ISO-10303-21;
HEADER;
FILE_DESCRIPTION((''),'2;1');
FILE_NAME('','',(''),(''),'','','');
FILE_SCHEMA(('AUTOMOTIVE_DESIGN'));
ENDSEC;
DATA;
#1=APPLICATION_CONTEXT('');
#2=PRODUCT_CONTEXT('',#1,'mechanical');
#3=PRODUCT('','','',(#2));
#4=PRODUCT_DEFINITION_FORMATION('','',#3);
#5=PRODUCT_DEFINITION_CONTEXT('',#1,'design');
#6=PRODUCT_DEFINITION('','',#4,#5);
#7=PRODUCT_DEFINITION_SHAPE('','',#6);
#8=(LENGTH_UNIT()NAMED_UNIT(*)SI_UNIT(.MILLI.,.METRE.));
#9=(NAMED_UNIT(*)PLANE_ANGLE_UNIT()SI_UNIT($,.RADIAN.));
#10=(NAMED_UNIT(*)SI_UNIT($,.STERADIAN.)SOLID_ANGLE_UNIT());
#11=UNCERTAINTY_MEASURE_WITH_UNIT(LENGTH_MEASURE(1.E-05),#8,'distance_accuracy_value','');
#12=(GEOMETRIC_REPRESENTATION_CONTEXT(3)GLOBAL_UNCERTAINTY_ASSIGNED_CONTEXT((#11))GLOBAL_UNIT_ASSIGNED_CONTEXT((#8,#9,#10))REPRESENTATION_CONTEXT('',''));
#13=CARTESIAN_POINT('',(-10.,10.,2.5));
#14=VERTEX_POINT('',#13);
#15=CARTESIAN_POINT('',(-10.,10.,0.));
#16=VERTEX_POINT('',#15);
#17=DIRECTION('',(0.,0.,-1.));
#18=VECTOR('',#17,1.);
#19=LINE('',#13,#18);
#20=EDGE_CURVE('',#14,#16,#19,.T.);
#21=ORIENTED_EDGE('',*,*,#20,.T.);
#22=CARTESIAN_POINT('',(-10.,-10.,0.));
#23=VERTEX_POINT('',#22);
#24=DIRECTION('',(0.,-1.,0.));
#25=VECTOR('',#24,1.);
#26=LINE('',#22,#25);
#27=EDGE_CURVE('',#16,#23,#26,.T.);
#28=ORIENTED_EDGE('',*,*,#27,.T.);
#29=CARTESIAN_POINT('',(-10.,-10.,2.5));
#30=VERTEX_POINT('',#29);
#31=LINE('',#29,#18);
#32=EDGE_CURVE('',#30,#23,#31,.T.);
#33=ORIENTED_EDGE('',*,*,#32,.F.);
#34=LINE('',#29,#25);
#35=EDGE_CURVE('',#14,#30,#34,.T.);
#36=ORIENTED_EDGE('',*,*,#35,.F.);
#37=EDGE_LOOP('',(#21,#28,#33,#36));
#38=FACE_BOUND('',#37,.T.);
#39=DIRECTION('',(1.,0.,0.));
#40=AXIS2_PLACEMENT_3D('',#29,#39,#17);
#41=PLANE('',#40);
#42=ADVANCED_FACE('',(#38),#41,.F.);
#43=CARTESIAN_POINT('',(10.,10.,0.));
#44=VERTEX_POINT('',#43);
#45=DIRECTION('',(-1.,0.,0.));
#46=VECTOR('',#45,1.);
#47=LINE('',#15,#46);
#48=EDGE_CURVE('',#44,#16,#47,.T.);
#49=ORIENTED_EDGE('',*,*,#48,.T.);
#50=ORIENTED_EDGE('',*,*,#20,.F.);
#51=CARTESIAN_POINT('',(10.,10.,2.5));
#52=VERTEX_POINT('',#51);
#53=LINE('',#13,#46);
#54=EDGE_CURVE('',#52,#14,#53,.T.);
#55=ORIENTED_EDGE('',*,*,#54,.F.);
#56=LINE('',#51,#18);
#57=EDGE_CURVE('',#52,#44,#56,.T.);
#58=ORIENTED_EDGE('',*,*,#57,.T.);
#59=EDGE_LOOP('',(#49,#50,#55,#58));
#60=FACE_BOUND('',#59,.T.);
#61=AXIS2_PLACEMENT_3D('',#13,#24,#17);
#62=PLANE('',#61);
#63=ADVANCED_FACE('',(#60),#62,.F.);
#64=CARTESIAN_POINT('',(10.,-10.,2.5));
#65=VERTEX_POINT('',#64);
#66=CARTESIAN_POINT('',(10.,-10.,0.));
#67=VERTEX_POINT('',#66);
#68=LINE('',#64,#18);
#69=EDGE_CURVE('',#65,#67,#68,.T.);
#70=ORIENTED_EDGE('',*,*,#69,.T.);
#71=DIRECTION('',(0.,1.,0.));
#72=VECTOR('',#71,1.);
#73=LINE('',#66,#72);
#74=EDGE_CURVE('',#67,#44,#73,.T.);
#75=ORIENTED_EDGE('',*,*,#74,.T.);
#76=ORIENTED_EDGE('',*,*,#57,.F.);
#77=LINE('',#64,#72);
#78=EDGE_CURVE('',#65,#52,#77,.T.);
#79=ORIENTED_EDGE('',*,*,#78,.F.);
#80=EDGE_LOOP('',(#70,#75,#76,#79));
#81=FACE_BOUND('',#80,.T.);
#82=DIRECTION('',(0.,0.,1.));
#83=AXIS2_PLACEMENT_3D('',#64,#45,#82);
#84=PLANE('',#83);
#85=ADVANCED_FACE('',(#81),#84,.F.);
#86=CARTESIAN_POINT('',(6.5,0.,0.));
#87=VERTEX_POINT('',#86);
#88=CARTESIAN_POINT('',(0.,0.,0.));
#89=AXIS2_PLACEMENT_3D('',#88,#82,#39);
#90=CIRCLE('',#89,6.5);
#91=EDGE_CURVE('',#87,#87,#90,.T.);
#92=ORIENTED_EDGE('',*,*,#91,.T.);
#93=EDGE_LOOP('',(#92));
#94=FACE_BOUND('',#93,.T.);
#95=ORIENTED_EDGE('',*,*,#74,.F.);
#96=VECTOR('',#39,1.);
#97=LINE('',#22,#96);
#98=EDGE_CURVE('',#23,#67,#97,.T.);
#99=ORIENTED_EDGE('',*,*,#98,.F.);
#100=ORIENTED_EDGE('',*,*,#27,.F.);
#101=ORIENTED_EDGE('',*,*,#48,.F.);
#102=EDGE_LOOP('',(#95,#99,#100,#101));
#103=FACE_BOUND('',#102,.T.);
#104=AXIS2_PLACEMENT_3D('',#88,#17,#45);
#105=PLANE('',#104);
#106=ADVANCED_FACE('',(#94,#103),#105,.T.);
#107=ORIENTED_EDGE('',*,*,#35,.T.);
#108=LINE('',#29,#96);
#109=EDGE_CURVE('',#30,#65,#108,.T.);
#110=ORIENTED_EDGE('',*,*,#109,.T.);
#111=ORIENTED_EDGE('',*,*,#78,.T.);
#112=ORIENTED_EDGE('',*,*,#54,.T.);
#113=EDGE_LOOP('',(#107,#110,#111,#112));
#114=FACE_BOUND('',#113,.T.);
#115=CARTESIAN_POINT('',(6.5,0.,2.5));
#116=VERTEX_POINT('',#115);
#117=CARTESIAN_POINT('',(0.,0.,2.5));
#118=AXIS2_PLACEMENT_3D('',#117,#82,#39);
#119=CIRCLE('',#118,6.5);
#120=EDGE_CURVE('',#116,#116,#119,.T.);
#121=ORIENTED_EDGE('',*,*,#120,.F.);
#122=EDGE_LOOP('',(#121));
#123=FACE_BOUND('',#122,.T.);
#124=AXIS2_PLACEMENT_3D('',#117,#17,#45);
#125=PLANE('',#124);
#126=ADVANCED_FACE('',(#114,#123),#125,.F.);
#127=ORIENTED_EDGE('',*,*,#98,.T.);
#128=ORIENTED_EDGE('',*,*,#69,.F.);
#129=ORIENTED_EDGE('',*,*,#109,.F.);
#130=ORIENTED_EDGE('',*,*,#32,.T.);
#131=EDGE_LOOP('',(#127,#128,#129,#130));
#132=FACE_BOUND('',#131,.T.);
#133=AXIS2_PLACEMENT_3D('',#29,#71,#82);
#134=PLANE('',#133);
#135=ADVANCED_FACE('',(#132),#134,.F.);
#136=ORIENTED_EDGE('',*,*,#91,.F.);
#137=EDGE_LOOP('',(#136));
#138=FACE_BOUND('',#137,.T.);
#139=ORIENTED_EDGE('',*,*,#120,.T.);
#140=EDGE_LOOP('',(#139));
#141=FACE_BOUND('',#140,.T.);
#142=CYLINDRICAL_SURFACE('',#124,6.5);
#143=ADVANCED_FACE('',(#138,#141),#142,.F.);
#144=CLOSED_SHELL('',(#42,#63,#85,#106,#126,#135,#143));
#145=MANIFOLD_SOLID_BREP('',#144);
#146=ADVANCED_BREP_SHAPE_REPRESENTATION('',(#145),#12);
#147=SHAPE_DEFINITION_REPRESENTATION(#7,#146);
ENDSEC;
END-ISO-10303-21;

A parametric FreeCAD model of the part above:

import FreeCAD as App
import Part
import Sketcher

doc = App.newDocument("Part")
body = doc.addObject("PartDesign::Body", "Body")

# Sketch on XY plane
sketch1 = body.newObject("Sketcher::SketchObject", "Sketch")
sketch1.AttachmentSupport = (doc.getObject("XY_Plane"), [""])
sketch1.MapMode = "FlatFace"
sketch1.addGeometry(Part.LineSegment(App.Vector(-10, 10, 0), App.Vector(-10, -10, 0)), False)
sketch1.addGeometry(Part.LineSegment(App.Vector(-10, -10, 0), App.Vector(10, -10, 0)), False)
sketch1.addGeometry(Part.LineSegment(App.Vector(10, -10, 0), App.Vector(10, 10, 0)), False)
sketch1.addGeometry(Part.LineSegment(App.Vector(10, 10, 0), App.Vector(-10, 10, 0)), False)
sketch1.addGeometry(Part.Circle(App.Vector(0, 0, 0), App.Vector(0, 0, 1), 6), False)
sketch1.addConstraint(Sketcher.Constraint("Coincident", 0, 2, 1, 1))
sketch1.addConstraint(Sketcher.Constraint("Coincident", 1, 2, 2, 1))
sketch1.addConstraint(Sketcher.Constraint("Coincident", 2, 2, 3, 1))
sketch1.addConstraint(Sketcher.Constraint("Coincident", 3, 2, 0, 1))
sketch1.addConstraint(Sketcher.Constraint("Vertical", 0))
sketch1.addConstraint(Sketcher.Constraint("Horizontal", 1))
sketch1.addConstraint(Sketcher.Constraint("Vertical", 2))
sketch1.addConstraint(Sketcher.Constraint("Horizontal", 3))
sketch1.addConstraint(Sketcher.Constraint("Coincident", 4, 3, -1, 1))
sketch1.addConstraint(Sketcher.Constraint("Symmetric", 0, 2, 2, 2, -1, 1))
sketch1.addConstraint(Sketcher.Constraint("Equal", 3, 0))
sketch1.addConstraint(Sketcher.Constraint("Diameter", 4, 13.0))
sketch1.addConstraint(Sketcher.Constraint("DistanceX", 1, 1, 1, 2, 20.0))
pad1 = body.newObject("PartDesign::Pad", "Pad")
pad1.Profile = sketch1
pad1.Length = 2.5

doc.recompute()
